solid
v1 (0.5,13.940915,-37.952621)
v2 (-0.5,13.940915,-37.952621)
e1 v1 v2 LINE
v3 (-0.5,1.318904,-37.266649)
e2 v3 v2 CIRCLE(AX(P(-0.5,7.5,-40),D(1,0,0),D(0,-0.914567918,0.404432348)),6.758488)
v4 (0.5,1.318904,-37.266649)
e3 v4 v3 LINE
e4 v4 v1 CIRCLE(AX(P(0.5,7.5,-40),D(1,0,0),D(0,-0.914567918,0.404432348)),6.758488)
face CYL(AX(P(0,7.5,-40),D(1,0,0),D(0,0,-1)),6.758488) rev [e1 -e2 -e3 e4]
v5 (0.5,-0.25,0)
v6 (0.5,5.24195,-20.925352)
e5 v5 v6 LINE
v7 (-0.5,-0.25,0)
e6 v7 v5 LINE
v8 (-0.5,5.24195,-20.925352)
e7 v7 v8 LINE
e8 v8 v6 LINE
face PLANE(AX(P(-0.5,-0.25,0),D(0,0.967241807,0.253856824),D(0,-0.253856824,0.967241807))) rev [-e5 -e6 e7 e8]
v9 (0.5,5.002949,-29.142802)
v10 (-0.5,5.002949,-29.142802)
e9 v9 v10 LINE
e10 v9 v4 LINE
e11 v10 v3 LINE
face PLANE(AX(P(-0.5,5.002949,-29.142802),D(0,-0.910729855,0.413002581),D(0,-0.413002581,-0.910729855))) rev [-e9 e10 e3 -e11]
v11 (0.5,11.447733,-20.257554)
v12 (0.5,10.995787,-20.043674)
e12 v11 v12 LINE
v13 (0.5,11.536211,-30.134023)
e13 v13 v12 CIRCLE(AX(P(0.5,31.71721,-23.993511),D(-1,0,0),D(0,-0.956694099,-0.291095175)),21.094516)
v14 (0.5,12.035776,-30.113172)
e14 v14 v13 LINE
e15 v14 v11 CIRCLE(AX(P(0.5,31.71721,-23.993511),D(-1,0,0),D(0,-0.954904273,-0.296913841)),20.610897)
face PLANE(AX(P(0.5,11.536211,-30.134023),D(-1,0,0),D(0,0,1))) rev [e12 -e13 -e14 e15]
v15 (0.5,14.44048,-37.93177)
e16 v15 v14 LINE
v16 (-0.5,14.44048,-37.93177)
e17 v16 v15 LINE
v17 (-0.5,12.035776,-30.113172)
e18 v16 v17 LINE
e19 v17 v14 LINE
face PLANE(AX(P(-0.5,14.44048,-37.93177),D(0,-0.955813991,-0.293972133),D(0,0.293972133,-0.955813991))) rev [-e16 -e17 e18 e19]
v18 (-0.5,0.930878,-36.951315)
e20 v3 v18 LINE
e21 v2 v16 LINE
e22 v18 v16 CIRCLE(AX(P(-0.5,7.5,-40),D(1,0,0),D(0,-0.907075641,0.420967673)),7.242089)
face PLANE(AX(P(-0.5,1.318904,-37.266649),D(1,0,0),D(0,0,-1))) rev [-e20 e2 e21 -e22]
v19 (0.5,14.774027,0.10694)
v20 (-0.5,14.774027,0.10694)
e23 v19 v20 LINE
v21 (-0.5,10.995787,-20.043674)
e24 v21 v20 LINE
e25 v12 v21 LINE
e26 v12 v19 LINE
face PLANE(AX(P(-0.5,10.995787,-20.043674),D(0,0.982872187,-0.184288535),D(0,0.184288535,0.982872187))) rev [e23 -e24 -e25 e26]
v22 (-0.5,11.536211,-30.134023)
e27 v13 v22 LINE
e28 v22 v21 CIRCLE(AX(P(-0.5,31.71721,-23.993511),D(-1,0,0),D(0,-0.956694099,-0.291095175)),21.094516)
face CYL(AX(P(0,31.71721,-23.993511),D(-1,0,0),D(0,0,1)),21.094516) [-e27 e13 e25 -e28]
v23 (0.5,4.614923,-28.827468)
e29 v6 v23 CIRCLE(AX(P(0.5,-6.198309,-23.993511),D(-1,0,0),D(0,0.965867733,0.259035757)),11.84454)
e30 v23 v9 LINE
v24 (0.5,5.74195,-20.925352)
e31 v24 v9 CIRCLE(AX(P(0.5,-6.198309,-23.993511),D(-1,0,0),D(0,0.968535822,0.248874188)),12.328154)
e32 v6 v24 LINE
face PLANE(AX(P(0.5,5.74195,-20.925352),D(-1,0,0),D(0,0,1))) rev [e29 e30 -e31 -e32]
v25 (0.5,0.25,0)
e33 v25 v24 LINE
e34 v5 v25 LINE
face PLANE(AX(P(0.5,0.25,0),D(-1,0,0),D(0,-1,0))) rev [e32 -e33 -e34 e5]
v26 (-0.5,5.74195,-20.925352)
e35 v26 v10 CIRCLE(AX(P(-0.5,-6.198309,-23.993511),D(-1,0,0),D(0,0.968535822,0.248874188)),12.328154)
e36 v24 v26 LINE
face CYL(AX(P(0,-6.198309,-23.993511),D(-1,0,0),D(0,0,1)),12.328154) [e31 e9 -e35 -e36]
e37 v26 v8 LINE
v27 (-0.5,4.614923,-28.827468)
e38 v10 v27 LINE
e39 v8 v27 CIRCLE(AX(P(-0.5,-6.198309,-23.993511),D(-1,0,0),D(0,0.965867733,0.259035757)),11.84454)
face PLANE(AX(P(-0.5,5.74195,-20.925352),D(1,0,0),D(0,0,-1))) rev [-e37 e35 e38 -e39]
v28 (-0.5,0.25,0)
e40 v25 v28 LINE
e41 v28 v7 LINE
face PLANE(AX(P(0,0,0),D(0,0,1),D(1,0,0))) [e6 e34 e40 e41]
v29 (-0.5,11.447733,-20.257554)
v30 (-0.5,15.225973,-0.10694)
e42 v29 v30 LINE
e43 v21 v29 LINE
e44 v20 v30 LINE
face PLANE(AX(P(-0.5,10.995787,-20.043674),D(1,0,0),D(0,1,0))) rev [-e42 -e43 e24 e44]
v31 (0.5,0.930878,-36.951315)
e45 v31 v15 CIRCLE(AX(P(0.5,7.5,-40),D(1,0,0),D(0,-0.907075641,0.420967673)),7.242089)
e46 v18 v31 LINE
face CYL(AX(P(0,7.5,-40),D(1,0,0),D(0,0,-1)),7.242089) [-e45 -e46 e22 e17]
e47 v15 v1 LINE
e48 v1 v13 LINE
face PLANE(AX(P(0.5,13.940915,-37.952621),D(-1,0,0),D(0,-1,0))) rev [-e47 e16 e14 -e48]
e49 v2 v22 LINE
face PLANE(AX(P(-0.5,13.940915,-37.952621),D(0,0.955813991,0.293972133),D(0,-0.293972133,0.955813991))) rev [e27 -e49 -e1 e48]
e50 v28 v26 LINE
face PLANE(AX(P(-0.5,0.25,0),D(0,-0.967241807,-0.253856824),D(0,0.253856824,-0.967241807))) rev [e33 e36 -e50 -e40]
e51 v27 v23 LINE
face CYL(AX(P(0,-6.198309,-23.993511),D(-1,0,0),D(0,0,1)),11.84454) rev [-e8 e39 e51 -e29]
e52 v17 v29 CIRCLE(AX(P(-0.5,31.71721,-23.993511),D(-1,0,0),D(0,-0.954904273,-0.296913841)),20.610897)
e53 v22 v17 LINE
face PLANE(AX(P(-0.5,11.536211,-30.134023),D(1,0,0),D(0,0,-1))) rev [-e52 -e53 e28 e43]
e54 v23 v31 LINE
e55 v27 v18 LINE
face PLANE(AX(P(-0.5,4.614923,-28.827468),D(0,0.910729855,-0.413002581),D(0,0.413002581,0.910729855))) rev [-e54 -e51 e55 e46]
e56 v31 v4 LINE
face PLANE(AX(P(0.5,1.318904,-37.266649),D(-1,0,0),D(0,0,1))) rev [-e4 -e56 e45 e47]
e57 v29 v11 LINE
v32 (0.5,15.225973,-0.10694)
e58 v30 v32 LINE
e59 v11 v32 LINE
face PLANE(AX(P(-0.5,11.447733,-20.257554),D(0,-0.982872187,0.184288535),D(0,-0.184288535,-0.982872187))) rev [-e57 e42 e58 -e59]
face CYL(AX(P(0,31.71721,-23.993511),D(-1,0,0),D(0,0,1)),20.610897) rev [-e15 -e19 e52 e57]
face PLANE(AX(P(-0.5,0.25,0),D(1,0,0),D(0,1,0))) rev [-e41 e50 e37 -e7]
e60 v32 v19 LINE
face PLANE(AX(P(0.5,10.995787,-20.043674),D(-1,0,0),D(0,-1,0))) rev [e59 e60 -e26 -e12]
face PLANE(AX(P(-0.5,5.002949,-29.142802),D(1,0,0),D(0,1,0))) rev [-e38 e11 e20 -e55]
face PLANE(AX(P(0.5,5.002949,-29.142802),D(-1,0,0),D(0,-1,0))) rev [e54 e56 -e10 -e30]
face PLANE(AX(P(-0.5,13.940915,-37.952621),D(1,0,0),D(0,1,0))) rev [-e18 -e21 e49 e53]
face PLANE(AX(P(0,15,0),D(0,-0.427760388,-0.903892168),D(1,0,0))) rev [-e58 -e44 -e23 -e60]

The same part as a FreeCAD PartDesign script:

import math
import FreeCAD as App
import Part
import Sketcher

V = App.Vector
Q = App.Units.Quantity

doc = App.newDocument("Part")
body = doc.addObject("PartDesign::Body", "Body")

# Sketch on XY plane
sketch1 = doc.addObject("Sketcher::SketchObject", "Sketch")
body.addObject(sketch1)
sketch1.AttachmentSupport = (doc.XY_Plane, [""])
sketch1.MapMode = "FlatFace"
sketch1.addGeometry(Part.LineSegment(V(-0.5, 0.2, 0), V(-0.5, -0.2, 0)), False)
sketch1.addGeometry(Part.LineSegment(V(-0.5, -0.2, 0), V(0.5, -0.2, 0)), False)
sketch1.addGeometry(Part.LineSegment(V(0.5, -0.2, 0), V(0.5, 0.2, 0)), False)
sketch1.addGeometry(Part.LineSegment(V(0.5, 0.2, 0), V(-0.5, 0.2, 0)), False)
sketch1.addConstraint(Sketcher.Constraint("Coincident", 0, 2, 1, 1))
sketch1.addConstraint(Sketcher.Constraint("Coincident", 1, 2, 2, 1))
sketch1.addConstraint(Sketcher.Constraint("Coincident", 2, 2, 3, 1))
sketch1.addConstraint(Sketcher.Constraint("Coincident", 3, 2, 0, 1))
sketch1.addConstraint(Sketcher.Constraint("Vertical", 0))
sketch1.addConstraint(Sketcher.Constraint("Horizontal", 1))
sketch1.addConstraint(Sketcher.Constraint("Vertical", 2))
sketch1.addConstraint(Sketcher.Constraint("Horizontal", 3))
sketch1.addConstraint(Sketcher.Constraint("Symmetric", 0, 2, 2, 2, -1, 1))
sketch1.addConstraint(Sketcher.Constraint("DistanceX", 1, 1, 1, 2, Q("1 mm")))
sketch1.addConstraint(Sketcher.Constraint("DistanceY", 0, 2, 0, 1, Q("0.5 mm")))

# Sketch on YZ plane
sketch2 = doc.addObject("Sketcher::SketchObject", "Sketch001")
body.addObject(sketch2)
sketch2.AttachmentSupport = (doc.YZ_Plane, [""])
sketch2.MapMode = "FlatFace"
sketch2.addGeometry(Part.LineSegment(V(0, 0, 0), V(5, -21, 0)), False)
sketch2.addGeometry(Part.ArcOfCircle(Part.Circle(V(-6, -24, 0), V(0, 0, 1), 12), math.radians(-24), math.radians(15)), False)
sketch2.addGeometry(Part.LineSegment(V(5, -29, 0), V(1, -37, 0)), False)
sketch2.addGeometry(Part.ArcOfCircle(Part.Circle(V(8, -40, 0), V(0, 0, 1), 7), math.radians(156), math.radians(377)), False)
sketch2.addGeometry(Part.LineSegment(V(14, -38, 0), V(12, -30, 0)), False)
sketch2.addGeometry(Part.ArcOfCircle(Part.Circle(V(32, -24, 0), V(0, 0, 1), 21), math.radians(169), math.radians(197)), False)
sketch2.addGeometry(Part.LineSegment(V(11, -20, 0), V(15, 0, 0)), False)
sketch2.addConstraint(Sketcher.Constraint("Tangent", 0, 2, 1, 2))
sketch2.addConstraint(Sketcher.Constraint("Tangent", 1, 1, 2, 1))
sketch2.addConstraint(Sketcher.Constraint("Tangent", 2, 2, 3, 1))
sketch2.addConstraint(Sketcher.Constraint("Tangent", 3, 2, 4, 1))
sketch2.addConstraint(Sketcher.Constraint("Tangent", 4, 2, 5, 2))
sketch2.addConstraint(Sketcher.Constraint("Tangent", 5, 1, 6, 1))
sketch2.addConstraint(Sketcher.Constraint("Coincident", 0, 1, -1, 1))
sketch2.addConstraint(Sketcher.Constraint("PointOnObject", 6, 2, -1))
sketch2.addConstraint(Sketcher.Constraint("Horizontal", 1, 3, 5, 3))
sketch2.addConstraint(Sketcher.Constraint("Radius", 3, Q("7 mm")))
sketch2.addConstraint(Sketcher.Constraint("DistanceY", 3, 3, -1, 1, Q("40 mm")))
sketch2.addConstraint(Sketcher.Constraint("DistanceX", -1, 1, 6, 2, Q("15 mm")))
sketch2.addConstraint(Sketcher.Constraint("DistanceX", -1, 1, 3, 3, Q("7.5 mm")))
sketch2.addConstraint(Sketcher.Constraint("Radius", 1, Q("12.08618 mm")))
sketch2.addConstraint(Sketcher.Constraint("Radius", 5, Q("20.85261 mm")))
sketch2.addConstraint(Sketcher.Constraint("DistanceX", 1, 3, 2, 2, Q("7.3232 mm")))
sketch2.addConstraint(Sketcher.Constraint("Distance", 2, Q("8.92015 mm")))
sketch2.addConstraint(Sketcher.Constraint("Distance", 4, Q("8.180041 mm")))
doc.recompute()

additivepipe = doc.addObject("PartDesign::AdditivePipe", "AdditivePipe")
body.addObject(additivepipe)
additivepipe.Profile = sketch1
additivepipe.Spine = (sketch2, ["Edge1", "Edge2", "Edge3", "Edge4", "Edge5", "Edge6", "Edge7"])

doc.recompute()
